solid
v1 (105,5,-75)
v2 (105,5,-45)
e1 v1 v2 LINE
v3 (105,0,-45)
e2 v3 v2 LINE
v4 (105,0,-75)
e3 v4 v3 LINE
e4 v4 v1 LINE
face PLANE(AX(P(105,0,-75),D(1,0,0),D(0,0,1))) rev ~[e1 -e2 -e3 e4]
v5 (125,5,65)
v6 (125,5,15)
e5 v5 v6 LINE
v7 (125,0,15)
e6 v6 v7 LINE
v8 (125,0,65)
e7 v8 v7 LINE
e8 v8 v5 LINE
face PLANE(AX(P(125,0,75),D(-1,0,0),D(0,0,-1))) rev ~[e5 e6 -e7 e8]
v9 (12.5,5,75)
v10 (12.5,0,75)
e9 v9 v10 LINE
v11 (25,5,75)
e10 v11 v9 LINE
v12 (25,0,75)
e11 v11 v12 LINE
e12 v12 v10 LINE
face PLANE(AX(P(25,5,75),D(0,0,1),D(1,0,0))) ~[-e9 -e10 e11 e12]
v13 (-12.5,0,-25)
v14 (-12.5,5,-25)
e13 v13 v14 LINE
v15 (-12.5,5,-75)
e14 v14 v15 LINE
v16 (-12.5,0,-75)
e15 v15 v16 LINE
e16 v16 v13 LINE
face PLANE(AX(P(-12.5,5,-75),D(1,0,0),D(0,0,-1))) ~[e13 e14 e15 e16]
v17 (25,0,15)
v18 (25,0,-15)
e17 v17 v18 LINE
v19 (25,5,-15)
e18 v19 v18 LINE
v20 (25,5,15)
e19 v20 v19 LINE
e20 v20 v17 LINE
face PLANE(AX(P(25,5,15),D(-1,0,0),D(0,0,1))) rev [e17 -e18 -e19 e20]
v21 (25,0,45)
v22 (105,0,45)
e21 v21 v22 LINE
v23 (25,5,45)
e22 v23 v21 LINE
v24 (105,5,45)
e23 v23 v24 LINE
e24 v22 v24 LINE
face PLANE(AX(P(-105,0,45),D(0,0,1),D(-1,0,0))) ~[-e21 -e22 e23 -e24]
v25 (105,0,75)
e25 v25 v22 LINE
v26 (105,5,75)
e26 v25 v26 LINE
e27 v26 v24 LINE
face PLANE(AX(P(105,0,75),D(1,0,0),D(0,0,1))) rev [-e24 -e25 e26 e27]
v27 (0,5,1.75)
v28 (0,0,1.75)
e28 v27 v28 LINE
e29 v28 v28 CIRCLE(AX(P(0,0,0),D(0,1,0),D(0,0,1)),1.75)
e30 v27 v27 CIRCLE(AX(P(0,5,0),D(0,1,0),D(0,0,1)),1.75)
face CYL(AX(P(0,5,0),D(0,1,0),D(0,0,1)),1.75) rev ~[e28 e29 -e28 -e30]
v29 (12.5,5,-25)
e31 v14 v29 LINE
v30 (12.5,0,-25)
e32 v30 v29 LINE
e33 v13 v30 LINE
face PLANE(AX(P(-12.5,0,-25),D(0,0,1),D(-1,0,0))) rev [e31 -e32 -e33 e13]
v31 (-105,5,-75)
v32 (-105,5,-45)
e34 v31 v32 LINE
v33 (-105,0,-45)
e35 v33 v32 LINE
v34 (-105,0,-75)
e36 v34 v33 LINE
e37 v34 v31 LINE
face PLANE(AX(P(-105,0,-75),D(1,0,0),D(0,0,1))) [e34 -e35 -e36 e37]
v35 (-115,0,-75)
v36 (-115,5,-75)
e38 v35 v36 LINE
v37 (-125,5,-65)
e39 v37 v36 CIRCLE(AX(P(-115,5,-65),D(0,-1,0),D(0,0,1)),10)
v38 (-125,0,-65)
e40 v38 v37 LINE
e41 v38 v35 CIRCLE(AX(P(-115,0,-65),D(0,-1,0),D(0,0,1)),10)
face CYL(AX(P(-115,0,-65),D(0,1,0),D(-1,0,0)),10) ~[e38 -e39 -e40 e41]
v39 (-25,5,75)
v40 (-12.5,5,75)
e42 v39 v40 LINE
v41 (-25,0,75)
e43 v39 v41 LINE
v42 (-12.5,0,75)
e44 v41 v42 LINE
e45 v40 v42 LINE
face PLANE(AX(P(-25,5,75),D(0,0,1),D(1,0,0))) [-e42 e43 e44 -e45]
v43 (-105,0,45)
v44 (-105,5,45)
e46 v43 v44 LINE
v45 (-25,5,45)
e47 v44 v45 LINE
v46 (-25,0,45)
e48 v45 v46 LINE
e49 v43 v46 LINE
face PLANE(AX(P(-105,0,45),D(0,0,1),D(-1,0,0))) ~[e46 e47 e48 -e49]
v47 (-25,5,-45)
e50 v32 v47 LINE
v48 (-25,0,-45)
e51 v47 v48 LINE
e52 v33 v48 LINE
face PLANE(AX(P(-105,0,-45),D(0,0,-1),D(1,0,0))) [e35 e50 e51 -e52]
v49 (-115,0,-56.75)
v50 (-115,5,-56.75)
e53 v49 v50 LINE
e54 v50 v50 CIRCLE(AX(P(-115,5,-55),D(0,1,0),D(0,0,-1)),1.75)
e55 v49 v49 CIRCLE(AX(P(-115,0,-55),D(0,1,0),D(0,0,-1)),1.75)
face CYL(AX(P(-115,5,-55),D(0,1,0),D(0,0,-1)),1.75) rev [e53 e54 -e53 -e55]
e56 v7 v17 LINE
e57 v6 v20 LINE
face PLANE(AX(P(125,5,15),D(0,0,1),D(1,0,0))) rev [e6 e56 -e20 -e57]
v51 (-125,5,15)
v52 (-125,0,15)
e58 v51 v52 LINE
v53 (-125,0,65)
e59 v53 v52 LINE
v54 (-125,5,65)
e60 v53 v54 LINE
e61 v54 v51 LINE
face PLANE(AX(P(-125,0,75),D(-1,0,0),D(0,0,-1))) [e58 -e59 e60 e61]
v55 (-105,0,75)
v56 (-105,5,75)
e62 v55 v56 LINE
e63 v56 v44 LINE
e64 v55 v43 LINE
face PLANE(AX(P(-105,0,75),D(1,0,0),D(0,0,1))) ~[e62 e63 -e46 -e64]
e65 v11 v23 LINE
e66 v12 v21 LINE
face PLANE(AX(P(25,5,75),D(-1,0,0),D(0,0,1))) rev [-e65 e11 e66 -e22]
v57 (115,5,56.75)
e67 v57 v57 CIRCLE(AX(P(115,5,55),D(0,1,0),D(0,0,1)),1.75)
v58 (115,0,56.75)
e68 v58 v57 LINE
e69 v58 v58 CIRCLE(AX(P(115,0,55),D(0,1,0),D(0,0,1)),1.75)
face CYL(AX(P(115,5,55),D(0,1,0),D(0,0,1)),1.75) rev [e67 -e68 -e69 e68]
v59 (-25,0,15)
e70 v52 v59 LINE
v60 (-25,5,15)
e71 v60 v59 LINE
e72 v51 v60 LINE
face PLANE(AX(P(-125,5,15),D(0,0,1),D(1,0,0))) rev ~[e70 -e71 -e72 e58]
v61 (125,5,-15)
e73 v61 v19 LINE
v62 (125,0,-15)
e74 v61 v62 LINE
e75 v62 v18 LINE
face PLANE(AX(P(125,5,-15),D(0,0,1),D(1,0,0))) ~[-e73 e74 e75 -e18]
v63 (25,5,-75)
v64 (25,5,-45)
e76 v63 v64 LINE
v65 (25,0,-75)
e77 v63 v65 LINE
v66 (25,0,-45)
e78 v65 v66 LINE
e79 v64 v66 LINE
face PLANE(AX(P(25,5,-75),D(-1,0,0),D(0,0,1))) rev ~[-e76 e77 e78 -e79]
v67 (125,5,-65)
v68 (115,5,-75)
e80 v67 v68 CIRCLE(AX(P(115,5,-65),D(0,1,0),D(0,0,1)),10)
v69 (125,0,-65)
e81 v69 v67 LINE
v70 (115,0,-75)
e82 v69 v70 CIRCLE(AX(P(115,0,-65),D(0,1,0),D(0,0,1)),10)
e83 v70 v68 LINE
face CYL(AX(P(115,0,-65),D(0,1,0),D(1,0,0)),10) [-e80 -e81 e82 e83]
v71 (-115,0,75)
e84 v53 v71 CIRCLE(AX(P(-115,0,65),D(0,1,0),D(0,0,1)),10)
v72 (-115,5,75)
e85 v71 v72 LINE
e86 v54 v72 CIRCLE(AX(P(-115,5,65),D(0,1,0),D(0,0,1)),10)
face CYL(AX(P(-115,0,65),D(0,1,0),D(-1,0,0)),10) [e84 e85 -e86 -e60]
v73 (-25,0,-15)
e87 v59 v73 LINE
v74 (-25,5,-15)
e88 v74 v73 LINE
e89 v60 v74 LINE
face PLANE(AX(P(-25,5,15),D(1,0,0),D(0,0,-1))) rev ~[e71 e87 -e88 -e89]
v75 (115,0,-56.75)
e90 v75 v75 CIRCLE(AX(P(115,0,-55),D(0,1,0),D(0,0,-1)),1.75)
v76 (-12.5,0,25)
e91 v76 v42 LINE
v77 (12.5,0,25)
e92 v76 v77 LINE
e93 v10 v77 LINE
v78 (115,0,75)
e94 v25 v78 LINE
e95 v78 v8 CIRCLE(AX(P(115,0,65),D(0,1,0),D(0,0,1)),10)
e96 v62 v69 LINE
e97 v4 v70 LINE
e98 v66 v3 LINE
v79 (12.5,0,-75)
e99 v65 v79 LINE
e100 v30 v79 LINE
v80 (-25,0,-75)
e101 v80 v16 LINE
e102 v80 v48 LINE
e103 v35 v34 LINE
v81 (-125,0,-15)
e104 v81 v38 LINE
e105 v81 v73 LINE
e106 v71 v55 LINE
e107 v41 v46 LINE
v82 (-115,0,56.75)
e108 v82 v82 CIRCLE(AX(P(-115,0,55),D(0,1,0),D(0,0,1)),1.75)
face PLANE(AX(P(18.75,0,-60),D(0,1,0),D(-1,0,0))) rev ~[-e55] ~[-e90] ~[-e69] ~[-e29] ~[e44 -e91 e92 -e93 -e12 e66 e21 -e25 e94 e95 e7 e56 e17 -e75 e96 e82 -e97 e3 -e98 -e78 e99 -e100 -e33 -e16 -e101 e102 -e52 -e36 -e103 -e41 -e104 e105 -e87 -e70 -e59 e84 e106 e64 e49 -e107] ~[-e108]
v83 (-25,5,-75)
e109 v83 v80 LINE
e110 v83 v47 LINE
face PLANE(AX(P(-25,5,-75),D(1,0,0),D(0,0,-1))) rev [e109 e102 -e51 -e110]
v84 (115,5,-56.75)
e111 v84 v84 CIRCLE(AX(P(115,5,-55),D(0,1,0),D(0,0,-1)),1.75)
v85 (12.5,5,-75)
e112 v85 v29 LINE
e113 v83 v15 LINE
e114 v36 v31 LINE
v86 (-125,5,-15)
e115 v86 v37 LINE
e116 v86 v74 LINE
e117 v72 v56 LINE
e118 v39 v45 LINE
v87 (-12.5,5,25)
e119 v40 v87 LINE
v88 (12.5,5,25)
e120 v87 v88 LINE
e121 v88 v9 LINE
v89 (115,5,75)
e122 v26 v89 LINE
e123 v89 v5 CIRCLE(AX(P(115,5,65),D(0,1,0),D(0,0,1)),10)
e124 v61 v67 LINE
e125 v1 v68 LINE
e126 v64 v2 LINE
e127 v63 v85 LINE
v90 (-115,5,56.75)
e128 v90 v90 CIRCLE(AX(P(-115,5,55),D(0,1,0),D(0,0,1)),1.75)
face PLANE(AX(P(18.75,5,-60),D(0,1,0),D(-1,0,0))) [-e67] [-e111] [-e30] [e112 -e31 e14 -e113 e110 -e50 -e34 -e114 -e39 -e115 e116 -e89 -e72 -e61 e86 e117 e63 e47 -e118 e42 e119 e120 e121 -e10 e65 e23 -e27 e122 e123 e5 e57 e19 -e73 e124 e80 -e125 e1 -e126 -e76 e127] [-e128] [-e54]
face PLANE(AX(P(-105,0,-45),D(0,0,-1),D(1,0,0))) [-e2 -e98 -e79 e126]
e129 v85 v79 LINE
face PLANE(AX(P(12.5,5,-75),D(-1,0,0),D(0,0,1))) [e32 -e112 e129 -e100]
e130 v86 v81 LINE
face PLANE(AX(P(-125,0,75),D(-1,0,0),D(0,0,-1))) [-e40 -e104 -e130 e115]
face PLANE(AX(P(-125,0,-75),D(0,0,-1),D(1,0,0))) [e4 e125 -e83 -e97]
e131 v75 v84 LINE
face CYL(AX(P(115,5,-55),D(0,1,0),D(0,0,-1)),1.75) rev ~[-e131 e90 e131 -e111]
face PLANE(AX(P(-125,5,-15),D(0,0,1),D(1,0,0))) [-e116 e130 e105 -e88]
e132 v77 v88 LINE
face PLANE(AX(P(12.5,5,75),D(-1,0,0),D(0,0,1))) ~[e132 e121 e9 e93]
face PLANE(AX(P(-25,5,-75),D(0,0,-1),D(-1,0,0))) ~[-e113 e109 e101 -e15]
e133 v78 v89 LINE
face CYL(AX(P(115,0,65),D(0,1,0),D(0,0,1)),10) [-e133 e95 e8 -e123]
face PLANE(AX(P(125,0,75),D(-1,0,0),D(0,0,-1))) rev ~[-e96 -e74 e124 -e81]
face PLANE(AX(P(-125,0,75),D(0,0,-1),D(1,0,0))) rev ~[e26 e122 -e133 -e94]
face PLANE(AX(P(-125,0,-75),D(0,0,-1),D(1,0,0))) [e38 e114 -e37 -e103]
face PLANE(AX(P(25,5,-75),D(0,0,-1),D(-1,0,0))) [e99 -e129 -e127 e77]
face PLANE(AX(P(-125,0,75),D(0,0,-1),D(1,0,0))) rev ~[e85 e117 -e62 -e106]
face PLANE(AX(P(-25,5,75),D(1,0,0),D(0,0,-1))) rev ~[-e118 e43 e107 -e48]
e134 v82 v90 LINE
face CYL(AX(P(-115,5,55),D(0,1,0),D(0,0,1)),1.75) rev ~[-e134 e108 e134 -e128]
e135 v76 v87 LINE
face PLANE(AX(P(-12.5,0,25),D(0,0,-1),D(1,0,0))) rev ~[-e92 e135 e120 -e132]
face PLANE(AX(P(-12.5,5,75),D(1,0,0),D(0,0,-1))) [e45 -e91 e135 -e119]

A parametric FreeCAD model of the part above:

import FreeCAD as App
import Part
import Sketcher


def edges_at(feature, points):
    """Names of the edges that pass closest to the given points."""
    edges = feature.Shape.Edges
    near = lambda p: min(range(len(edges)), key=lambda i: edges[i].distToShape(Part.Vertex(*p))[0])
    return sorted({f"Edge{near(p) + 1}" for p in points})

doc = App.newDocument("Part")
body = doc.addObject("PartDesign::Body", "Body")

# Sketch on XZ plane
sketch1 = body.newObject("Sketcher::SketchObject", "Sketch")
sketch1.AttachmentSupport = (doc.getObject("XZ_Plane"), [""])
sketch1.MapMode = "FlatFace"
sketch1.addGeometry(Part.LineSegment(App.Vector(-125, -75, 0), App.Vector(-125, 75, 0)), False)
sketch1.addGeometry(Part.LineSegment(App.Vector(-125, 75, 0), App.Vector(125, 75, 0)), False)
sketch1.addGeometry(Part.LineSegment(App.Vector(125, 75, 0), App.Vector(125, -75, 0)), False)
sketch1.addGeometry(Part.LineSegment(App.Vector(125, -75, 0), App.Vector(-125, -75, 0)), False)
sketch1.addConstraint(Sketcher.Constraint("Coincident", 0, 2, 1, 1))
sketch1.addConstraint(Sketcher.Constraint("Coincident", 1, 2, 2, 1))
sketch1.addConstraint(Sketcher.Constraint("Coincident", 2, 2, 3, 1))
sketch1.addConstraint(Sketcher.Constraint("Coincident", 3, 2, 0, 1))
sketch1.addConstraint(Sketcher.Constraint("Vertical", 0))
sketch1.addConstraint(Sketcher.Constraint("Horizontal", 1))
sketch1.addConstraint(Sketcher.Constraint("Vertical", 2))
sketch1.addConstraint(Sketcher.Constraint("Horizontal", 3))
sketch1.addConstraint(Sketcher.Constraint("Symmetric", 0, 2, 2, 2, -1, 1))
sketch1.addConstraint(Sketcher.Constraint("DistanceX", 1, 1, 1, 2, 250.0))
sketch1.addConstraint(Sketcher.Constraint("DistanceY", 0, 1, 0, 2, 150.0))
pad1 = body.newObject("PartDesign::Pad", "Pad")
pad1.Profile = sketch1
pad1.Length = 5
pad1.Reversed = True
doc.recompute()

fillet = body.newObject("PartDesign::Fillet", "Fillet")
fillet.Base = (pad1, edges_at(pad1, [
    (-125, 2.5, -75),
    (125, 2.5, -75),
    (125, 2.5, 75),
    (-125, 2.5, 75),
]))
fillet.Radius = 10

# Sketch on XZ plane
sketch2 = body.newObject("Sketcher::SketchObject", "Sketch001")
sketch2.AttachmentSupport = (doc.getObject("XZ_Plane"), [""])
sketch2.MapMode = "FlatFace"
sketch2.AttachmentOffset = App.Placement(App.Vector(0, 0, -5), App.Rotation())
sketch2.addGeometry(Part.Circle(App.Vector(-115, 55, 0), App.Vector(0, 0, 1), 1.8), False)
sketch2.addConstraint(Sketcher.Constraint("Diameter", 0, 3.5))
sketch2.addConstraint(Sketcher.Constraint("DistanceX", 0, 3, -1, 1, 115.0))
sketch2.addConstraint(Sketcher.Constraint("DistanceY", -1, 1, 0, 3, 55.0))
pocket1 = body.newObject("PartDesign::Pocket", "Pocket")
pocket1.Profile = sketch2
pocket1.Length = 293.719043
pocket1.Midplane = True
doc.recompute()

mirrored = body.newObject("PartDesign::Mirrored", "Mirrored")
mirrored.Originals = [pocket1]
mirrored.MirrorPlane = (doc.getObject("XY_Plane"), [""])
body.Tip = mirrored
doc.recompute()

mirrored2 = body.newObject("PartDesign::Mirrored", "Mirrored001")
mirrored2.Originals = [pocket1]
mirrored2.MirrorPlane = (doc.getObject("YZ_Plane"), [""])
body.Tip = mirrored2

# Sketch on XZ plane
sketch3 = body.newObject("Sketcher::SketchObject", "Sketch002")
sketch3.AttachmentSupport = (doc.getObject("XZ_Plane"), [""])
sketch3.MapMode = "FlatFace"
sketch3.AttachmentOffset = App.Placement(App.Vector(0, 0, -5), App.Rotation())
sketch3.addGeometry(Part.Circle(App.Vector(115, -55, 0), App.Vector(0, 0, 1), 1.8), False)
sketch3.addConstraint(Sketcher.Constraint("Diameter", 0, 3.5))
sketch3.addConstraint(Sketcher.Constraint("DistanceX", -1, 1, 0, 3, 115.0))
sketch3.addConstraint(Sketcher.Constraint("DistanceY", 0, 3, -1, 1, 55.0))
pocket2 = body.newObject("PartDesign::Pocket", "Pocket001")
pocket2.Profile = sketch3
pocket2.Length = 293.719043
pocket2.Midplane = True

# Sketch on XZ plane
sketch4 = body.newObject("Sketcher::SketchObject", "Sketch003")
sketch4.AttachmentSupport = (doc.getObject("XZ_Plane"), [""])
sketch4.MapMode = "FlatFace"
sketch4.AttachmentOffset = App.Placement(App.Vector(0, 0, -5), App.Rotation())
sketch4.addGeometry(Part.Circle(App.Vector(0, 0, 0), App.Vector(0, 0, 1), 1.8), False)
sketch4.addConstraint(Sketcher.Constraint("Coincident", 0, 3, -1, 1))
sketch4.addConstraint(Sketcher.Constraint("Diameter", 0, 3.5))
pocket3 = body.newObject("PartDesign::Pocket", "Pocket002")
pocket3.Profile = sketch4
pocket3.Length = 5
pocket3.Reversed = True

# Sketch on XZ plane
sketch5 = body.newObject("Sketcher::SketchObject", "Sketch004")
sketch5.AttachmentSupport = (doc.getObject("XZ_Plane"), [""])
sketch5.MapMode = "FlatFace"
sketch5.addGeometry(Part.LineSegment(App.Vector(-12, 75, 0), App.Vector(-12, 25, 0)), False)
sketch5.addGeometry(Part.LineSegment(App.Vector(-12, 25, 0), App.Vector(12, 25, 0)), False)
sketch5.addGeometry(Part.LineSegment(App.Vector(12, 25, 0), App.Vector(12, 75, 0)), False)
sketch5.addGeometry(Part.LineSegment(App.Vector(12, 75, 0), App.Vector(-12, 75, 0)), False)
sketch5.addConstraint(Sketcher.Constraint("Coincident", 0, 2, 1, 1))
sketch5.addConstraint(Sketcher.Constraint("Coincident", 1, 2, 2, 1))
sketch5.addConstraint(Sketcher.Constraint("Coincident", 2, 2, 3, 1))
sketch5.addConstraint(Sketcher.Constraint("Coincident", 3, 2, 0, 1))
sketch5.addConstraint(Sketcher.Constraint("Vertical", 0))
sketch5.addConstraint(Sketcher.Constraint("Horizontal", 1))
sketch5.addConstraint(Sketcher.Constraint("Vertical", 2))
sketch5.addConstraint(Sketcher.Constraint("Horizontal", 3))
sketch5.addConstraint(Sketcher.Constraint("DistanceX", 1, 1, 1, 2, 25.0))
sketch5.addConstraint(Sketcher.Constraint("DistanceY", 0, 2, 0, 1, 50.0))
sketch5.addConstraint(Sketcher.Constraint("DistanceY", -1, 1, 0, 2, 25.0))
sketch5.addConstraint(Sketcher.Constraint("DistanceX", 0, 2, -1, 1, 12.5))
pocket4 = body.newObject("PartDesign::Pocket", "Pocket003")
pocket4.Profile = sketch5
pocket4.Length = 5

# Sketch on XZ plane
sketch6 = body.newObject("Sketcher::SketchObject", "Sketch005")
sketch6.AttachmentSupport = (doc.getObject("XZ_Plane"), [""])
sketch6.MapMode = "FlatFace"
sketch6.addGeometry(Part.LineSegment(App.Vector(-105, -45, 0), App.Vector(-105, -75, 0)), False)
sketch6.addGeometry(Part.LineSegment(App.Vector(-105, -75, 0), App.Vector(105, -75, 0)), False)
sketch6.addGeometry(Part.LineSegment(App.Vector(105, -75, 0), App.Vector(105, -45, 0)), False)
sketch6.addGeometry(Part.LineSegment(App.Vector(105, -45, 0), App.Vector(-105, -45, 0)), False)
sketch6.addConstraint(Sketcher.Constraint("Coincident", 0, 2, 1, 1))
sketch6.addConstraint(Sketcher.Constraint("Coincident", 1, 2, 2, 1))
sketch6.addConstraint(Sketcher.Constraint("Coincident", 2, 2, 3, 1))
sketch6.addConstraint(Sketcher.Constraint("Coincident", 3, 2, 0, 1))
sketch6.addConstraint(Sketcher.Constraint("Vertical", 0))
sketch6.addConstraint(Sketcher.Constraint("Horizontal", 1))
sketch6.addConstraint(Sketcher.Constraint("Vertical", 2))
sketch6.addConstraint(Sketcher.Constraint("Horizontal", 3))
sketch6.addConstraint(Sketcher.Constraint("DistanceX", 1, 1, 1, 2, 210.0))
sketch6.addConstraint(Sketcher.Constraint("DistanceY", 0, 2, 0, 1, 30.0))
sketch6.addConstraint(Sketcher.Constraint("DistanceX", 0, 2, -1, 1, 105.0))
sketch6.addConstraint(Sketcher.Constraint("DistanceY", 0, 2, -1, 1, 75.0))
pocket5 = body.newObject("PartDesign::Pocket", "Pocket004")
pocket5.Profile = sketch6
pocket5.Length = 5
doc.recompute()

mirrored3 = body.newObject("PartDesign::Mirrored", "Mirrored002")
mirrored3.Originals = [pocket5]
mirrored3.MirrorPlane = (doc.getObject("XY_Plane"), [""])
body.Tip = mirrored3
doc.recompute()

mirrored4 = body.newObject("PartDesign::Mirrored", "Mirrored003")
mirrored4.Originals = [pocket4]
mirrored4.MirrorPlane = (doc.getObject("XY_Plane"), [""])
body.Tip = mirrored4

# Sketch on XZ plane
sketch7 = body.newObject("Sketcher::SketchObject", "Sketch006")
sketch7.AttachmentSupport = (doc.getObject("XZ_Plane"), [""])
sketch7.MapMode = "FlatFace"
sketch7.AttachmentOffset = App.Placement(App.Vector(0, 0, -5), App.Rotation())
sketch7.addGeometry(Part.LineSegment(App.Vector(-25, 45, 0), App.Vector(-25, 75, 0)), False)
sketch7.addGeometry(Part.LineSegment(App.Vector(-25, 75, 0), App.Vector(-12, 75, 0)), False)
sketch7.addGeometry(Part.LineSegment(App.Vector(-12, 75, 0), App.Vector(-12, 45, 0)), False)
sketch7.addGeometry(Part.LineSegment(App.Vector(-12, 45, 0), App.Vector(-25, 45, 0)), False)
sketch7.addConstraint(Sketcher.Constraint("Coincident", 0, 2, 1, 1))
sketch7.addConstraint(Sketcher.Constraint("Coincident", 1, 2, 2, 1))
sketch7.addConstraint(Sketcher.Constraint("Coincident", 2, 2, 3, 1))
sketch7.addConstraint(Sketcher.Constraint("Coincident", 3, 2, 0, 1))
sketch7.addConstraint(Sketcher.Constraint("Vertical", 0))
sketch7.addConstraint(Sketcher.Constraint("Horizontal", 1))
sketch7.addConstraint(Sketcher.Constraint("Vertical", 2))
sketch7.addConstraint(Sketcher.Constraint("Horizontal", 3))
sketch7.addConstraint(Sketcher.Constraint("DistanceY", 0, 1, 0, 2, 30.0))
sketch7.addConstraint(Sketcher.Constraint("DistanceX", 1, 1, 1, 2, 12.5))
sketch7.addConstraint(Sketcher.Constraint("DistanceX", 0, 2, -1, 1, 25.0))
sketch7.addConstraint(Sketcher.Constraint("DistanceY", -1, 1, 0, 2, 75.0))
pad2 = body.newObject("PartDesign::Pad", "Pad001")
pad2.Profile = sketch7
pad2.Length = 5
doc.recompute()

mirrored5 = body.newObject("PartDesign::Mirrored", "Mirrored004")
mirrored5.Originals = [pad2]
mirrored5.MirrorPlane = (doc.getObject("YZ_Plane"), [""])
body.Tip = mirrored5
doc.recompute()

mirrored6 = body.newObject("PartDesign::Mirrored", "Mirrored005")
mirrored6.Originals = [pad2]
mirrored6.MirrorPlane = (doc.getObject("XY_Plane"), [""])
body.Tip = mirrored6

# Sketch on XZ plane
sketch8 = body.newObject("Sketcher::SketchObject", "Sketch007")
sketch8.AttachmentSupport = (doc.getObject("XZ_Plane"), [""])
sketch8.MapMode = "FlatFace"
sketch8.AttachmentOffset = App.Placement(App.Vector(0, 0, -5), App.Rotation())
sketch8.addGeometry(Part.LineSegment(App.Vector(25, -45, 0), App.Vector(25, -75, 0)), False)
sketch8.addGeometry(Part.LineSegment(App.Vector(25, -75, 0), App.Vector(12, -75, 0)), False)
sketch8.addGeometry(Part.LineSegment(App.Vector(12, -75, 0), App.Vector(12, -45, 0)), False)
sketch8.addGeometry(Part.LineSegment(App.Vector(12, -45, 0), App.Vector(25, -45, 0)), False)
sketch8.addConstraint(Sketcher.Constraint("Coincident", 0, 2, 1, 1))
sketch8.addConstraint(Sketcher.Constraint("Coincident", 1, 2, 2, 1))
sketch8.addConstraint(Sketcher.Constraint("Coincident", 2, 2, 3, 1))
sketch8.addConstraint(Sketcher.Constraint("Coincident", 3, 2, 0, 1))
sketch8.addConstraint(Sketcher.Constraint("Vertical", 0))
sketch8.addConstraint(Sketcher.Constraint("Horizontal", 1))
sketch8.addConstraint(Sketcher.Constraint("Vertical", 2))
sketch8.addConstraint(Sketcher.Constraint("Horizontal", 3))
sketch8.addConstraint(Sketcher.Constraint("DistanceY", 0, 2, 0, 1, 30.0))
sketch8.addConstraint(Sketcher.Constraint("DistanceX", 1, 2, 1, 1, 12.5))
sketch8.addConstraint(Sketcher.Constraint("DistanceX", -1, 1, 0, 2, 25.0))
sketch8.addConstraint(Sketcher.Constraint("DistanceY", 0, 2, -1, 1, 75.0))
pad3 = body.newObject("PartDesign::Pad", "Pad002")
pad3.Profile = sketch8
pad3.Length = 5

# Sketch on XZ plane
sketch9 = body.newObject("Sketcher::SketchObject", "Sketch008")
sketch9.AttachmentSupport = (doc.getObject("XZ_Plane"), [""])
sketch9.MapMode = "FlatFace"
sketch9.AttachmentOffset = App.Placement(App.Vector(0, 0, -5), App.Rotation())
sketch9.addGeometry(Part.LineSegment(App.Vector(-125, -15, 0), App.Vector(-125, 15, 0)), False)
sketch9.addGeometry(Part.LineSegment(App.Vector(-125, 15, 0), App.Vector(-25, 15, 0)), False)
sketch9.addGeometry(Part.LineSegment(App.Vector(-25, 15, 0), App.Vector(-25, -15, 0)), False)
sketch9.addGeometry(Part.LineSegment(App.Vector(-25, -15, 0), App.Vector(-125, -15, 0)), False)
sketch9.addConstraint(Sketcher.Constraint("Coincident", 0, 2, 1, 1))
sketch9.addConstraint(Sketcher.Constraint("Coincident", 1, 2, 2, 1))
sketch9.addConstraint(Sketcher.Constraint("Coincident", 2, 2, 3, 1))
sketch9.addConstraint(Sketcher.Constraint("Coincident", 3, 2, 0, 1))
sketch9.addConstraint(Sketcher.Constraint("Vertical", 0))
sketch9.addConstraint(Sketcher.Constraint("Horizontal", 1))
sketch9.addConstraint(Sketcher.Constraint("Vertical", 2))
sketch9.addConstraint(Sketcher.Constraint("Horizontal", 3))
sketch9.addConstraint(Sketcher.Constraint("DistanceX", 1, 1, 1, 2, 100.0))
sketch9.addConstraint(Sketcher.Constraint("DistanceY", 0, 1, 0, 2, 30.0))
sketch9.addConstraint(Sketcher.Constraint("DistanceX", 0, 2, -1, 1, 125.0))
sketch9.addConstraint(Sketcher.Constraint("DistanceY", -1, 1, 0, 2, 15.0))
pocket6 = body.newObject("PartDesign::Pocket", "Pocket005")
pocket6.Profile = sketch9
pocket6.Length = 5
pocket6.Reversed = True
doc.recompute()

mirrored7 = body.newObject("PartDesign::Mirrored", "Mirrored006")
mirrored7.Originals = [pocket6]
mirrored7.MirrorPlane = (doc.getObject("YZ_Plane"), [""])
body.Tip = mirrored7

doc.recompute()
